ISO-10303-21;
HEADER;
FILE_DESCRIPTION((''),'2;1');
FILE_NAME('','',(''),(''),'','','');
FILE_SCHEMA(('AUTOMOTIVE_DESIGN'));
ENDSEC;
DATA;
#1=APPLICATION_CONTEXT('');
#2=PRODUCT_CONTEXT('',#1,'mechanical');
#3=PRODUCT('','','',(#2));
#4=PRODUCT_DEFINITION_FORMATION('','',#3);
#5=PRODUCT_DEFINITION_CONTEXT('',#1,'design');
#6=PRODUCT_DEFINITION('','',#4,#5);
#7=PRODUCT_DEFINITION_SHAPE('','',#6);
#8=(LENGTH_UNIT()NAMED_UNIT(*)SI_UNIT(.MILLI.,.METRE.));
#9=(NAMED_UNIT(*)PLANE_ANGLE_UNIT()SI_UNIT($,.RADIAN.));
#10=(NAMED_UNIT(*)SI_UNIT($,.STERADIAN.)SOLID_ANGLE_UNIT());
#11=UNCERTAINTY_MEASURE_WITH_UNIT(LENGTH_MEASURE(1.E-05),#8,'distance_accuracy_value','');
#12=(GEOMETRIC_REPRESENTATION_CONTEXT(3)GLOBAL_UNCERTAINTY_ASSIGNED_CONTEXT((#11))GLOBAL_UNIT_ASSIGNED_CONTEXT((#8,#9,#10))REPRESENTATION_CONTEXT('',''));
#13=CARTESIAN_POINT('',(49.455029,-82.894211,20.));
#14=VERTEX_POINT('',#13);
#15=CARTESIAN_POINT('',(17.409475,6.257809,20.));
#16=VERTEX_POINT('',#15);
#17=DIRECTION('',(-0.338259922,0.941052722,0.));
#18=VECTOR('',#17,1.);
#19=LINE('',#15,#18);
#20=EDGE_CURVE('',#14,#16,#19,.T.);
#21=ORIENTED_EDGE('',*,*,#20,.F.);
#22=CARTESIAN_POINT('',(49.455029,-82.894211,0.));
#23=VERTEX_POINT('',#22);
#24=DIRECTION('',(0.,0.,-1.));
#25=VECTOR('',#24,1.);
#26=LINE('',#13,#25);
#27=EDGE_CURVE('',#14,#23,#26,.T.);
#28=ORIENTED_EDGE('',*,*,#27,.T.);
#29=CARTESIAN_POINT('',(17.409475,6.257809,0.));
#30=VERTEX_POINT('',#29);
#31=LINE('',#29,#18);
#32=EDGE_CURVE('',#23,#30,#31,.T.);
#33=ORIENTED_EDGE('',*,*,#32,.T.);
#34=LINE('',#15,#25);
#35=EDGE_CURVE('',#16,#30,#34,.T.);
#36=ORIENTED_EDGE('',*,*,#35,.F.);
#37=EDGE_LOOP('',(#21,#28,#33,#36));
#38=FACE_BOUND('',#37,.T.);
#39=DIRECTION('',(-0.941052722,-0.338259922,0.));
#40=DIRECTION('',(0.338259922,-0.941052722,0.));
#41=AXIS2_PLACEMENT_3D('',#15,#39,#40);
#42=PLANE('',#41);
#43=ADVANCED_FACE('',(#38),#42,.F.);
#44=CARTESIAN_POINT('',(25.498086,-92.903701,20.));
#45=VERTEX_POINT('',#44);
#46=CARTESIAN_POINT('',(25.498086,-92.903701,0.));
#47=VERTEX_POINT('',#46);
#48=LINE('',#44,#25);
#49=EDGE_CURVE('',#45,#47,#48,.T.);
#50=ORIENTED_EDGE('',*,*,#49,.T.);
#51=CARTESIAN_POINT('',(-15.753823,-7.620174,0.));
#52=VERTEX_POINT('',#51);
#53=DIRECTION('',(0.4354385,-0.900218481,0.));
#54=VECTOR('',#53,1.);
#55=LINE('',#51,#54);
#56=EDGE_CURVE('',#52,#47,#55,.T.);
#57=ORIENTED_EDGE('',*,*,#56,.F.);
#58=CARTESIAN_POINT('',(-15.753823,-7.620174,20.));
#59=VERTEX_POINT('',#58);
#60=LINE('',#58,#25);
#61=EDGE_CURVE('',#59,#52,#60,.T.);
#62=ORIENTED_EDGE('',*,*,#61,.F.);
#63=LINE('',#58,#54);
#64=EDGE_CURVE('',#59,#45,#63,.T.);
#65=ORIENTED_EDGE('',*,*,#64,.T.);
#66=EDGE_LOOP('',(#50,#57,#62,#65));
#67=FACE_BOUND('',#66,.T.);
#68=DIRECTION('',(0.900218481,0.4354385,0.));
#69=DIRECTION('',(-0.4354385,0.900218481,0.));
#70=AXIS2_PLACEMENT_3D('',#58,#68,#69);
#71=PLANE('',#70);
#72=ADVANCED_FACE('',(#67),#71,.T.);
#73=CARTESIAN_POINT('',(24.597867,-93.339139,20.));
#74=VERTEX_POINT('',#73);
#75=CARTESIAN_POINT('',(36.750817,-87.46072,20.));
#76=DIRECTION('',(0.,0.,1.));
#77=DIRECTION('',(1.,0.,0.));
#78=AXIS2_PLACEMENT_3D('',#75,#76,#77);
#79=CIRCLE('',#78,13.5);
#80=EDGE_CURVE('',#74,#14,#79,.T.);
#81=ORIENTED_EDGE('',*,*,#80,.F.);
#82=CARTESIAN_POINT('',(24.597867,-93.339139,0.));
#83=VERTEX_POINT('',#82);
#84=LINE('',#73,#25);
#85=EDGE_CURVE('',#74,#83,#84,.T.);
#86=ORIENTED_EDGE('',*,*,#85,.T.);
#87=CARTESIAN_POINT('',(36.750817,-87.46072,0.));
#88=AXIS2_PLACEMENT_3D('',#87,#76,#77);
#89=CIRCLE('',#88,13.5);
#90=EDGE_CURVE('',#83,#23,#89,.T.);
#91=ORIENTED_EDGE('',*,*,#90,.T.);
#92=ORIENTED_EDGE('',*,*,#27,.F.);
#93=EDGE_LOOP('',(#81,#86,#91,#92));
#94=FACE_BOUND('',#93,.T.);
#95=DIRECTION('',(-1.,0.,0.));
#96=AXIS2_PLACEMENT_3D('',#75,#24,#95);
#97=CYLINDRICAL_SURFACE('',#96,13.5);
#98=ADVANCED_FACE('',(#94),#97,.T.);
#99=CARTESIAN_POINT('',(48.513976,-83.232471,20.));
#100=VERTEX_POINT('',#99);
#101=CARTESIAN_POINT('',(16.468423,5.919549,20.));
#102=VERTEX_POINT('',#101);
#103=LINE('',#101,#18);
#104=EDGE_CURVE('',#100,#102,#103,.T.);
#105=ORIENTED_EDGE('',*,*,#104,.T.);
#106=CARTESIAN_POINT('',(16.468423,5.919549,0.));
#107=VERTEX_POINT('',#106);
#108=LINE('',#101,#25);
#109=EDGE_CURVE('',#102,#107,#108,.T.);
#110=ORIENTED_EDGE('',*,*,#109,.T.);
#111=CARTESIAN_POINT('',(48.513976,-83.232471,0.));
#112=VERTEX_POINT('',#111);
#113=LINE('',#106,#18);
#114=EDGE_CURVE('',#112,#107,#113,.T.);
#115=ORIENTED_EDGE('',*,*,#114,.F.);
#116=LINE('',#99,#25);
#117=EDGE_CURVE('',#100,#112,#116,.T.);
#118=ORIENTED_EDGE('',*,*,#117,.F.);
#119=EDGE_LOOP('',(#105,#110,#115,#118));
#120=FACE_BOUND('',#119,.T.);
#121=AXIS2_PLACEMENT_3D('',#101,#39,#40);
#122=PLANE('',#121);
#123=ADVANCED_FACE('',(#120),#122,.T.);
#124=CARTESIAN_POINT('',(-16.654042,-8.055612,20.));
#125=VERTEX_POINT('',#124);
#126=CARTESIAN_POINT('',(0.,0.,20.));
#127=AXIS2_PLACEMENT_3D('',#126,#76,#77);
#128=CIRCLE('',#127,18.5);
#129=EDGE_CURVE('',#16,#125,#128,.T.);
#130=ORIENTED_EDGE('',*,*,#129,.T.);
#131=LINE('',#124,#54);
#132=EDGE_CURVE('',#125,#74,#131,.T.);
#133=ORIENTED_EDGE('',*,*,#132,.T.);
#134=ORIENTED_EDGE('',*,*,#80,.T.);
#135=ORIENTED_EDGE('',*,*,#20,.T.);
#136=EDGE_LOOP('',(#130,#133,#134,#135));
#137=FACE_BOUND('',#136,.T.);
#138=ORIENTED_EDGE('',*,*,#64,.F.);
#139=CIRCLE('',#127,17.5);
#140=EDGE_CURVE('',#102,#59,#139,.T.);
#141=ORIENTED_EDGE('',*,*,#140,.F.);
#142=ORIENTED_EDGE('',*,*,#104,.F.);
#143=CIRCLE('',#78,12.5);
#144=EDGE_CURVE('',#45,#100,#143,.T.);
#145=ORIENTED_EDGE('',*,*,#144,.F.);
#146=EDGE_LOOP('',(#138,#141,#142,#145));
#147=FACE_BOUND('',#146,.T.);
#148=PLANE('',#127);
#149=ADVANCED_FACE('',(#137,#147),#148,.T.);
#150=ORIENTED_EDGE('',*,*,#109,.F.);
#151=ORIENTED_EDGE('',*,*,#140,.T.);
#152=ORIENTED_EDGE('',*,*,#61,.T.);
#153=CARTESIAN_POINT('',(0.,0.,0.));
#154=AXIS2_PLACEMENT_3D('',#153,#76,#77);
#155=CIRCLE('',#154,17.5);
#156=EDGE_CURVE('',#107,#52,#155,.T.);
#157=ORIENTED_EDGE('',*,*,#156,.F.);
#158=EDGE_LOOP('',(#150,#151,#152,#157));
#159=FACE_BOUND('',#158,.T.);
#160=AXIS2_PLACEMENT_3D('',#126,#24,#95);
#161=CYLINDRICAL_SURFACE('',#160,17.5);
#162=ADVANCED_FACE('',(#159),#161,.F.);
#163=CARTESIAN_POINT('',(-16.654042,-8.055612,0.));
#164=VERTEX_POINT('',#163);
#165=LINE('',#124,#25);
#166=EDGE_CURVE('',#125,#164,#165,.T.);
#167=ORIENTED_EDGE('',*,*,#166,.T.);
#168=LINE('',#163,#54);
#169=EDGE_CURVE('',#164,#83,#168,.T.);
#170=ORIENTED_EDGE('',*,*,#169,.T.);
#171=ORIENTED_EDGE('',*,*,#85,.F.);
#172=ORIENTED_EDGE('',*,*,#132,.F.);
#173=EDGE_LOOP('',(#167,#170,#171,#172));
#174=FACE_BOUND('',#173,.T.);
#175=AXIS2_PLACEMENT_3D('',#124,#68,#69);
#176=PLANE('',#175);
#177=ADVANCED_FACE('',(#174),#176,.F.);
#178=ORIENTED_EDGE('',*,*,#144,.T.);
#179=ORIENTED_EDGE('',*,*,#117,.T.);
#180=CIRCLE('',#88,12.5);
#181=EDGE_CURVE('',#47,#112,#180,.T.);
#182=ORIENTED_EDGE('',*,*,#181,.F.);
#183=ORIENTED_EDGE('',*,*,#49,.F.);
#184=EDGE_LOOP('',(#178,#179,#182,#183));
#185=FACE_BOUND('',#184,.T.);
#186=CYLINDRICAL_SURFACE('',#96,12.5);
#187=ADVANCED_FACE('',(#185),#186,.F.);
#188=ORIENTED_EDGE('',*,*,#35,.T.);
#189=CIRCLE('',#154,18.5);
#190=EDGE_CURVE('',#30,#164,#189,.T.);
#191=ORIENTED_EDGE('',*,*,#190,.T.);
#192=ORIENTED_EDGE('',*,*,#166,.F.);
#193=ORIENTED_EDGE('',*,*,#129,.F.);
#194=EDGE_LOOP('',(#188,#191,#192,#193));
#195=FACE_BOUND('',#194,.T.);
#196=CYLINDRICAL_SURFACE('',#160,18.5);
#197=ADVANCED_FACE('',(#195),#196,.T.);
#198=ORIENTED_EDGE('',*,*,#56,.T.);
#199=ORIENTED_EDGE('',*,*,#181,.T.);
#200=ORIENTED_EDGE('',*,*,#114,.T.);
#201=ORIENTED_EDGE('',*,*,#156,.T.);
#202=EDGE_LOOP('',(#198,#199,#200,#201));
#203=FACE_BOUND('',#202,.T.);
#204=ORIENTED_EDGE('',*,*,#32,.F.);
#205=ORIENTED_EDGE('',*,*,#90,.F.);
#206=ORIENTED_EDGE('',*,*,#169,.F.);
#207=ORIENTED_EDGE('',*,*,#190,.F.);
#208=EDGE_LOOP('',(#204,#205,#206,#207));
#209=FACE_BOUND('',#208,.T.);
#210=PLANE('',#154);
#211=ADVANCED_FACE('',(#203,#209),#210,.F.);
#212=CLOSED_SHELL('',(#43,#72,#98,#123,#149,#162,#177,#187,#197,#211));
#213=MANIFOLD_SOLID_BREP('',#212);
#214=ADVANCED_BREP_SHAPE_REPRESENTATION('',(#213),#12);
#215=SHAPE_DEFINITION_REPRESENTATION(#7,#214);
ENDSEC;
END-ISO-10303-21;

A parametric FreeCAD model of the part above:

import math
import FreeCAD as App
import Part
import Sketcher

doc = App.newDocument("Part")
body = doc.addObject("PartDesign::Body", "Body")

# Sketch on XY plane
sketch1 = doc.addObject("Sketcher::SketchObject", "Sketch")
body.addObject(sketch1)
sketch1.AttachmentSupport = (doc.XY_Plane, [""])
sketch1.MapMode = "FlatFace"
sketch1.addGeometry(Part.LineSegment(App.Vector(49.455029, -82.894211, 0), App.Vector(17.409475, 6.257809, 0)), False)
sketch1.addGeometry(Part.ArcOfCircle(Part.Circle(App.Vector(0, 0, 0), App.Vector(0, 0, 1), 18.5), math.radians(19.770895), math.radians(205.8132)), False)
sketch1.addGeometry(Part.LineSegment(App.Vector(-16.654042, -8.055612, 0), App.Vector(24.597867, -93.339139, 0)), False)
sketch1.addGeometry(Part.ArcOfCircle(Part.Circle(App.Vector(36.750817, -87.46072, 0), App.Vector(0, 0, 1), 13.5), math.radians(-154.1868), math.radians(19.770895)), False)
sketch1.addGeometry(Part.LineSegment(App.Vector(16.468423, 5.919549, 0), App.Vector(48.513976, -83.232471, 0)), False)
sketch1.addGeometry(Part.ArcOfCircle(Part.Circle(App.Vector(36.750817, -87.46072, 0), App.Vector(0, 0, 1), 12.5), math.radians(-154.1868), math.radians(19.770895)), False)
sketch1.addGeometry(Part.LineSegment(App.Vector(25.498086, -92.903701, 0), App.Vector(-15.753823, -7.620174, 0)), False)
sketch1.addGeometry(Part.ArcOfCircle(Part.Circle(App.Vector(0, 0, 0), App.Vector(0, 0, 1), 17.5), math.radians(19.770895), math.radians(205.8132)), False)
sketch1.addConstraint(Sketcher.Constraint("Tangent", 0, 2, 1, 1))
sketch1.addConstraint(Sketcher.Constraint("Tangent", 1, 2, 2, 1))
sketch1.addConstraint(Sketcher.Constraint("Tangent", 2, 2, 3, 1))
sketch1.addConstraint(Sketcher.Constraint("Tangent", 3, 2, 0, 1))
sketch1.addConstraint(Sketcher.Constraint("Tangent", 4, 2, 5, 2))
sketch1.addConstraint(Sketcher.Constraint("Tangent", 5, 1, 6, 1))
sketch1.addConstraint(Sketcher.Constraint("Tangent", 6, 2, 7, 2))
sketch1.addConstraint(Sketcher.Constraint("Tangent", 7, 1, 4, 1))
sketch1.addConstraint(Sketcher.Constraint("Coincident", 1, 3, -1, 1))
sketch1.addConstraint(Sketcher.Constraint("Coincident", 7, 3, -1, 1))
sketch1.addConstraint(Sketcher.Constraint("Coincident", 5, 3, 3, 3))
sketch1.addConstraint(Sketcher.Constraint("Parallel", 0, 4))
sketch1.addConstraint(Sketcher.Constraint("Radius", 1, 18.5))
sketch1.addConstraint(Sketcher.Constraint("Radius", 3, 13.5))
sketch1.addConstraint(Sketcher.Constraint("Radius", 5, 12.5))
sketch1.addConstraint(Sketcher.Constraint("DistanceY", 5, 1, -1, 1, 92.903701))
sketch1.addConstraint(Sketcher.Constraint("DistanceX", 0, 2, 4, 2, 31.1045))
pad1 = doc.addObject("PartDesign::Pad", "Pad")
body.addObject(pad1)
pad1.Profile = sketch1
pad1.Length = 20

doc.recompute()
